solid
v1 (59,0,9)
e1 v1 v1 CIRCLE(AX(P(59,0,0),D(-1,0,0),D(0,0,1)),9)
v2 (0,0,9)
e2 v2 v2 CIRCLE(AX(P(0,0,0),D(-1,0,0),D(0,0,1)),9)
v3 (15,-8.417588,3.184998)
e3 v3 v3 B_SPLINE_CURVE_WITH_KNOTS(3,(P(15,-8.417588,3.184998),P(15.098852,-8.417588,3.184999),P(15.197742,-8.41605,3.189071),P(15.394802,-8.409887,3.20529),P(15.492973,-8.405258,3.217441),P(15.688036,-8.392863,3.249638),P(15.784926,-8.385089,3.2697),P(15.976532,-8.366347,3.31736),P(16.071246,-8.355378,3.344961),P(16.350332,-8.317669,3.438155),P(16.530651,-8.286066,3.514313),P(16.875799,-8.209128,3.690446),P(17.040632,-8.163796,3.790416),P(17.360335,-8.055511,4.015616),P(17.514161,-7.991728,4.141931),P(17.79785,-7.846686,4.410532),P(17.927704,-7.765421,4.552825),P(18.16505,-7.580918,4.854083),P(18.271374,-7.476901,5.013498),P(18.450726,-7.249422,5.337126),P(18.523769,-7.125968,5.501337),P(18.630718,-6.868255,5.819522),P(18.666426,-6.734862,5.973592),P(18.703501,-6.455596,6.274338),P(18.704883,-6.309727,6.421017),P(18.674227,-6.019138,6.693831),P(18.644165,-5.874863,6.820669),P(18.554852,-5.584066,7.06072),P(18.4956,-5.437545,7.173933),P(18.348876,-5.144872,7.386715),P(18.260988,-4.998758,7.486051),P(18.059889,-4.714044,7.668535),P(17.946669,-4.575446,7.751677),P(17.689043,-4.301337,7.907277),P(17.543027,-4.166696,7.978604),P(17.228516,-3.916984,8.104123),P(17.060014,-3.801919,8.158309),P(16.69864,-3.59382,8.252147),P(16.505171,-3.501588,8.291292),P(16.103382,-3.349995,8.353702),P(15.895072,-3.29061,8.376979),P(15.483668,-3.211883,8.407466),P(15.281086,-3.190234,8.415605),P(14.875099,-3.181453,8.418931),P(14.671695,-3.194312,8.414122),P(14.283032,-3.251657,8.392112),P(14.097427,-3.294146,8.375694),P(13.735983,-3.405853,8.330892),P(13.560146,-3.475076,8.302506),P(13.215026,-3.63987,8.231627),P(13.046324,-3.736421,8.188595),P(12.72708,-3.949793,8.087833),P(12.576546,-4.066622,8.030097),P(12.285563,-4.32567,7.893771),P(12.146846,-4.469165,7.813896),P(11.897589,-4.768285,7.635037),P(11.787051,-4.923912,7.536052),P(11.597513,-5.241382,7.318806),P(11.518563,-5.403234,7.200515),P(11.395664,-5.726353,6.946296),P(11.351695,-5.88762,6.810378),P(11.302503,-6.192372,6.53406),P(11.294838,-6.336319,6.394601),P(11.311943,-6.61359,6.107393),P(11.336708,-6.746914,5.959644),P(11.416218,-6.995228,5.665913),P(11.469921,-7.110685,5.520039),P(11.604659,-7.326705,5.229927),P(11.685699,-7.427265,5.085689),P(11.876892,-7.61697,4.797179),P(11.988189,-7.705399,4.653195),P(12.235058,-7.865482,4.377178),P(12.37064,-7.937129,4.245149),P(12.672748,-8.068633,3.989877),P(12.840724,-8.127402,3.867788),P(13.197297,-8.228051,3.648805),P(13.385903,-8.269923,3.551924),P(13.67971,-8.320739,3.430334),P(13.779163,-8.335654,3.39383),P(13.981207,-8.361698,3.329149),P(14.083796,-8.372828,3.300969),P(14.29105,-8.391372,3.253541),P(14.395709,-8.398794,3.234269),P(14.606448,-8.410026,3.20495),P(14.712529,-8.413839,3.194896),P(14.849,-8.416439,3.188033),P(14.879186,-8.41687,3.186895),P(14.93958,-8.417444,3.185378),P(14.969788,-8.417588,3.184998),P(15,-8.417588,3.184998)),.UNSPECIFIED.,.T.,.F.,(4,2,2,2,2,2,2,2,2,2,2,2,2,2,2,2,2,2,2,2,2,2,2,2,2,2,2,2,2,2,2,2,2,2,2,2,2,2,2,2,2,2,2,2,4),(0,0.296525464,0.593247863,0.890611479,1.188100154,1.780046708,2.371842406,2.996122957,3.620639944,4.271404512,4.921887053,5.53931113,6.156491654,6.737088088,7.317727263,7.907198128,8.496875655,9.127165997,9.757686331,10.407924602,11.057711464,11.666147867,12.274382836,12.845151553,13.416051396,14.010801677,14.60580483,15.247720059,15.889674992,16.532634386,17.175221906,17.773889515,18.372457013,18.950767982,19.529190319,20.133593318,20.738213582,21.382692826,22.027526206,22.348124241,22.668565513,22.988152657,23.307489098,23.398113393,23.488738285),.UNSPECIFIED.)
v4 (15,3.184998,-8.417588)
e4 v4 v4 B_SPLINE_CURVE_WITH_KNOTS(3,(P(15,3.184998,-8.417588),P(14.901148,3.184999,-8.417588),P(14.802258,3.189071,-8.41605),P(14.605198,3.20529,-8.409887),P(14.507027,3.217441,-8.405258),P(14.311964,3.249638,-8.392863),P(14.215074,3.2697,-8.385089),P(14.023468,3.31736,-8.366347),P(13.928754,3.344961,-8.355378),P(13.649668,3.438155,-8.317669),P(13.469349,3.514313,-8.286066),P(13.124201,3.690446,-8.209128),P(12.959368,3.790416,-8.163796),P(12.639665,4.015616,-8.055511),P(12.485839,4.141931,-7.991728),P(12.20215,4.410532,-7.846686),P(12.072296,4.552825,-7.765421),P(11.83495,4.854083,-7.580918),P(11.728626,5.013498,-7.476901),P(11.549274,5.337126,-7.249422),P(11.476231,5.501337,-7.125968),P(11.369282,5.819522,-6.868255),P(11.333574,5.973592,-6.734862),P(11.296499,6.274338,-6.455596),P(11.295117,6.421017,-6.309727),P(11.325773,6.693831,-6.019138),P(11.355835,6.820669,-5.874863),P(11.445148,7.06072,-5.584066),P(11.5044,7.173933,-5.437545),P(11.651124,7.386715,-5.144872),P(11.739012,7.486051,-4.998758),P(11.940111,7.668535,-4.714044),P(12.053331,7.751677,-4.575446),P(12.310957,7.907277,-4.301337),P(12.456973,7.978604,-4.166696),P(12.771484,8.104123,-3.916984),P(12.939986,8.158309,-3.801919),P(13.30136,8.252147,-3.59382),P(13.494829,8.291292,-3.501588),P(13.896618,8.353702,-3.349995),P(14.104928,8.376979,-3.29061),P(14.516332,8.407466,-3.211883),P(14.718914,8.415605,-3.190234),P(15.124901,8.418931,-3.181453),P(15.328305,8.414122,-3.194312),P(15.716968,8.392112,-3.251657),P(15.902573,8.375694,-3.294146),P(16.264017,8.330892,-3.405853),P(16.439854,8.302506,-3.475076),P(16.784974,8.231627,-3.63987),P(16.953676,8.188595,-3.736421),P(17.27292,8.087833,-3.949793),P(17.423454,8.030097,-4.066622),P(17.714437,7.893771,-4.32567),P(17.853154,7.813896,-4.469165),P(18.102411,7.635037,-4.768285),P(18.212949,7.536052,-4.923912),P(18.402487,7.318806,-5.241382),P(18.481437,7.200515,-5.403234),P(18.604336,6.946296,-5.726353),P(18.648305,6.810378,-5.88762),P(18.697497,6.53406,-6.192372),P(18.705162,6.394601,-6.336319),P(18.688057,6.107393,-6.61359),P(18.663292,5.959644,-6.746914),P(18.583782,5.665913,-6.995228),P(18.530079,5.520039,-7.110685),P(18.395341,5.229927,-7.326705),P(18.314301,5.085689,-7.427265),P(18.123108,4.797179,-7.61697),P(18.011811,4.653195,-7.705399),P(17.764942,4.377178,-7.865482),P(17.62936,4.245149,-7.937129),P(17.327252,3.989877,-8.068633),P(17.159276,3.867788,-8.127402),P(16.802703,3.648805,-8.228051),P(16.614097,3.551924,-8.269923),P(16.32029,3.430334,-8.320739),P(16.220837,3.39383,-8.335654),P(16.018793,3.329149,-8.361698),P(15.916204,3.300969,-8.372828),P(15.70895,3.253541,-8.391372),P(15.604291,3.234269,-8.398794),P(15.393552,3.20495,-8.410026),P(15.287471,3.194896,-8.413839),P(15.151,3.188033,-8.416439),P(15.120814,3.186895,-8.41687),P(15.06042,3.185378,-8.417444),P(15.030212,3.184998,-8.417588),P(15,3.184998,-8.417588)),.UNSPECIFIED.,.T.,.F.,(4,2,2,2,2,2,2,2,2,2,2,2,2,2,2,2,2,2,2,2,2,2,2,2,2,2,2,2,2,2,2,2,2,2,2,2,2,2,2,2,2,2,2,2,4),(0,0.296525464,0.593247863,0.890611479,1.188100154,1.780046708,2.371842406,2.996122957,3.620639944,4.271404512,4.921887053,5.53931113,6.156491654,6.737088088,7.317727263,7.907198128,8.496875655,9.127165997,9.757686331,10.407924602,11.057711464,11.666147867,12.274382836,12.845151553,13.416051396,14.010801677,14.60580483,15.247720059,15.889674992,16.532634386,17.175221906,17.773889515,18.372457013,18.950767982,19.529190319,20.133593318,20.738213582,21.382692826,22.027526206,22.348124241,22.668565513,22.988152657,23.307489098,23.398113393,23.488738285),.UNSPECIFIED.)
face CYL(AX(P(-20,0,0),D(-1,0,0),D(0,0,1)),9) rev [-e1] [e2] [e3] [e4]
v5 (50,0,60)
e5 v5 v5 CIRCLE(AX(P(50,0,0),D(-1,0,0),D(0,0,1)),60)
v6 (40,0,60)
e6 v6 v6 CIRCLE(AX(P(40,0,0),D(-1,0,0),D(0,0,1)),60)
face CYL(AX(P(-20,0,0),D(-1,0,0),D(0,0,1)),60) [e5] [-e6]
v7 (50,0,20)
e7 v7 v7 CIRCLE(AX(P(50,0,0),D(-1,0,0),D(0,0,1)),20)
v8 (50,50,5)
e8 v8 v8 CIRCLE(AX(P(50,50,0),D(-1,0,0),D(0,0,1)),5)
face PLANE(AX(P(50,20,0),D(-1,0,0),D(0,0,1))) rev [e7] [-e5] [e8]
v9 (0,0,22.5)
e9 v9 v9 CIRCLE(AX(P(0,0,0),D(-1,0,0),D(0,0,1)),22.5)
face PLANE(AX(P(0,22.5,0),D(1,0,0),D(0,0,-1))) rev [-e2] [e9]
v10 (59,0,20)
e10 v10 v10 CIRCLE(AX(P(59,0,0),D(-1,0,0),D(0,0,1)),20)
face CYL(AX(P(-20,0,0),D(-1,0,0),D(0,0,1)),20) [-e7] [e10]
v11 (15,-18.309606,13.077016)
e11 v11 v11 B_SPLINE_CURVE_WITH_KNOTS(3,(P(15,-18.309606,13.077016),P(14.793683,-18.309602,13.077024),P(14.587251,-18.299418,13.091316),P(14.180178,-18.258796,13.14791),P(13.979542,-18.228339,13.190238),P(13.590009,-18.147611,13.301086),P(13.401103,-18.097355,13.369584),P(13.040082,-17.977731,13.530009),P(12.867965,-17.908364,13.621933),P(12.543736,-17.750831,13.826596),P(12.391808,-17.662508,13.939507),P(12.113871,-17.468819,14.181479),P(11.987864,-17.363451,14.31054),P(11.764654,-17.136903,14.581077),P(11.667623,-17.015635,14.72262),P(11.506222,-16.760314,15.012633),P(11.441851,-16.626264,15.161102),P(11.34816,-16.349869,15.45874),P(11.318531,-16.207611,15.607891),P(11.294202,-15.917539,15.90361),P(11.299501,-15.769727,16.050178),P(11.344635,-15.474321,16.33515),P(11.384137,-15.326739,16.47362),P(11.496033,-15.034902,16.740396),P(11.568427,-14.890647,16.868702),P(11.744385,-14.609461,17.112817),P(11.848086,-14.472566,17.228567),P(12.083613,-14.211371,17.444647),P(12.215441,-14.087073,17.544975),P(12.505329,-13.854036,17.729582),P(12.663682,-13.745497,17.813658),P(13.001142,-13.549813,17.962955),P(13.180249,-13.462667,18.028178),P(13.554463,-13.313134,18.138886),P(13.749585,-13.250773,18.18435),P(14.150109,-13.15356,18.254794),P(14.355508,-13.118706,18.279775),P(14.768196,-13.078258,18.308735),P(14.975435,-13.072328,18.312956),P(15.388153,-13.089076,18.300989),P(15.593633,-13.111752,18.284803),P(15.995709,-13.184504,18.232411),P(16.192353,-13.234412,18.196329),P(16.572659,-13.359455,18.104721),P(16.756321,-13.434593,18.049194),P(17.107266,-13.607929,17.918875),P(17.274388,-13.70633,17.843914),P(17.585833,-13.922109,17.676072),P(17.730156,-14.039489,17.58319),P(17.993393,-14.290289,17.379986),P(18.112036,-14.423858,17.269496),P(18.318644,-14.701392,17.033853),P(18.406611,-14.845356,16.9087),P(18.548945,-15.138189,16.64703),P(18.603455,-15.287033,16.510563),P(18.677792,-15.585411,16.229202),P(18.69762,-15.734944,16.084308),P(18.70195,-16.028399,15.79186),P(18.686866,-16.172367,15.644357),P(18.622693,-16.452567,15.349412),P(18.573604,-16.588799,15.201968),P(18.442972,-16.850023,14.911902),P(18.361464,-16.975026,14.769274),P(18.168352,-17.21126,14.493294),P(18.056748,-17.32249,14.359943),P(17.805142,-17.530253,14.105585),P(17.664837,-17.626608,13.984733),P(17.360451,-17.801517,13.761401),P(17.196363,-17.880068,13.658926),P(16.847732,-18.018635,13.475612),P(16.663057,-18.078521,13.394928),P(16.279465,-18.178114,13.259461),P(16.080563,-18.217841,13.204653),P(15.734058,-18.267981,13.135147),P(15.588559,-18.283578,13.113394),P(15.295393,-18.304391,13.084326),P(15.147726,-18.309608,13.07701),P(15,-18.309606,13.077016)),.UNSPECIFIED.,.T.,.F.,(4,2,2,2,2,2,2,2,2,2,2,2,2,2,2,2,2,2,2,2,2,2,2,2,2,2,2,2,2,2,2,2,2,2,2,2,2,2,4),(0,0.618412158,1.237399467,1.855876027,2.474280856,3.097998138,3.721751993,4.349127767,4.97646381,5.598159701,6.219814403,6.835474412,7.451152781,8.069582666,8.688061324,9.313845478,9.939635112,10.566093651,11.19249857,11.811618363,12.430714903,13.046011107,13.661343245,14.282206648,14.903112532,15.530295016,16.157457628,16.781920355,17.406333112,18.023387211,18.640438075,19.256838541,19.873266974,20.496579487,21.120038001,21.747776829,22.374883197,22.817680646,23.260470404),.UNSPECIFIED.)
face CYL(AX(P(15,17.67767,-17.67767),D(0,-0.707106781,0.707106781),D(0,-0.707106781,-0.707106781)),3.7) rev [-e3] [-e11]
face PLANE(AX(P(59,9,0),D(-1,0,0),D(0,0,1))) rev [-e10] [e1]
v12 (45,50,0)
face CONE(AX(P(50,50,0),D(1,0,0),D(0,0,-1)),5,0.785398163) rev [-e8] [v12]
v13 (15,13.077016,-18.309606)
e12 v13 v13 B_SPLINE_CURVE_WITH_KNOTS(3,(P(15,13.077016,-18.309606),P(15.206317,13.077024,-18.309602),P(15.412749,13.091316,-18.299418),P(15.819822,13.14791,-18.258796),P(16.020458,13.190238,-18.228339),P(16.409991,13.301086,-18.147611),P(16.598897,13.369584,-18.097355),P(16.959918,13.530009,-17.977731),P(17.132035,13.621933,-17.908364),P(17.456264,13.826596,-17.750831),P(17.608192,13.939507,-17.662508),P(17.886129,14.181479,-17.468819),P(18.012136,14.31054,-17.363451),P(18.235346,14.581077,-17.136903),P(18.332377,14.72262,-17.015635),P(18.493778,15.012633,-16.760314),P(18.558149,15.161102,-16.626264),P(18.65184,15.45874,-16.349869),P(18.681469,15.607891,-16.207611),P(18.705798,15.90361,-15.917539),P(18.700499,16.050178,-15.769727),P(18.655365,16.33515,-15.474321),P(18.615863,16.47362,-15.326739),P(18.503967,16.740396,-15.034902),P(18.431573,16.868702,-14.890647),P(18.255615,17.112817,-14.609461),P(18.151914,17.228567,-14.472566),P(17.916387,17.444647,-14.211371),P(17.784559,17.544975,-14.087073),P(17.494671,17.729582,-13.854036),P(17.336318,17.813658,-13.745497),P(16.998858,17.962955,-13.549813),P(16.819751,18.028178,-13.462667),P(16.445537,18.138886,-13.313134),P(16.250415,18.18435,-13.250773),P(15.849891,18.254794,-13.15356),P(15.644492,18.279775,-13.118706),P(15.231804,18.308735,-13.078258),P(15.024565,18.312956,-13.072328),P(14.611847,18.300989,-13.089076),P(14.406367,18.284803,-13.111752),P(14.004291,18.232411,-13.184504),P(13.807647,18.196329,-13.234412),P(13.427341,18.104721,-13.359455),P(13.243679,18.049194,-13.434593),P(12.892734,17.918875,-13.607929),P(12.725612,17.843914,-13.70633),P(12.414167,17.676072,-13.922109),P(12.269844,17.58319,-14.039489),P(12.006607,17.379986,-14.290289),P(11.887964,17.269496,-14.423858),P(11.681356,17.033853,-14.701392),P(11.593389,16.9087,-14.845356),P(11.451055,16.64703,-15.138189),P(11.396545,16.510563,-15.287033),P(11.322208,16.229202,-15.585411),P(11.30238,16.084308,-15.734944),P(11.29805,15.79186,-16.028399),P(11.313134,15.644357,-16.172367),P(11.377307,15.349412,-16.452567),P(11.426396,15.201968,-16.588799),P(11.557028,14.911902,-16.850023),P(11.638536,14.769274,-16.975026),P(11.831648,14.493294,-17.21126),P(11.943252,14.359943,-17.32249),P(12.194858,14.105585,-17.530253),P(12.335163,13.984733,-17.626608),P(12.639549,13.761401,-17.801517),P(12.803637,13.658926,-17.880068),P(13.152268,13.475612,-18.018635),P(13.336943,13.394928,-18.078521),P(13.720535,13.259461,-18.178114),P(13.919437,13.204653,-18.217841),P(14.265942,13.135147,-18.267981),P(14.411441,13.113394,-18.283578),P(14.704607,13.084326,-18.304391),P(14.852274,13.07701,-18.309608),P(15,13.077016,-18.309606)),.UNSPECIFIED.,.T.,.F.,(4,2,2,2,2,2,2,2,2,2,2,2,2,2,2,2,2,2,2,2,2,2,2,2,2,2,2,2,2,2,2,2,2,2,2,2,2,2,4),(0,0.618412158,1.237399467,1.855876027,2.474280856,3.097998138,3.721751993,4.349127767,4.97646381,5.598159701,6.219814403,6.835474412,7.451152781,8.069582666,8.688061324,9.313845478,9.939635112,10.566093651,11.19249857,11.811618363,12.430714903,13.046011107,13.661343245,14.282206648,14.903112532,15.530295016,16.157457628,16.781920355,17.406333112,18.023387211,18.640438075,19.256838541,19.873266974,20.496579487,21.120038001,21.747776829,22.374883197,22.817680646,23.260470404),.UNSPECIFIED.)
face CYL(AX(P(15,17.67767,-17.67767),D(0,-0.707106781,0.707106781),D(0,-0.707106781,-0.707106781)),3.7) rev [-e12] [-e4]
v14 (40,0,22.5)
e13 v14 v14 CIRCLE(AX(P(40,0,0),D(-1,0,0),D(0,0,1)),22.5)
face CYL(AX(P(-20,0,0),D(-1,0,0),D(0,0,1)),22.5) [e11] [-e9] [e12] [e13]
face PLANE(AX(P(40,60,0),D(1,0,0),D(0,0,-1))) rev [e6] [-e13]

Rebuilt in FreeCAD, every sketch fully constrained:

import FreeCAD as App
import Part
import Sketcher
Q = App.Units.Quantity

doc = App.newDocument("Part")
body = doc.addObject("PartDesign::Body", "Body")

# Sketch on XY plane
sketch1 = doc.addObject("Sketcher::SketchObject", "Sketch")
body.addObject(sketch1)
sketch1.AttachmentSupport = (doc.XY_Plane, [""])
sketch1.MapMode = "FlatFace"
sketch1.addGeometry([
    Part.LineSegment(App.Vector(0, 9, 0), App.Vector(59, 9, 0)),  # 0
    Part.LineSegment(App.Vector(59, 9, 0), App.Vector(59, 20, 0)),  # 1
    Part.LineSegment(App.Vector(59, 20, 0), App.Vector(50, 20, 0)),  # 2
    Part.LineSegment(App.Vector(50, 20, 0), App.Vector(50, 60, 0)),  # 3
    Part.LineSegment(App.Vector(50, 60, 0), App.Vector(40, 60, 0)),  # 4
    Part.LineSegment(App.Vector(40, 60, 0), App.Vector(40, 22, 0)),  # 5
    Part.LineSegment(App.Vector(40, 22, 0), App.Vector(0, 22, 0)),  # 6
    Part.LineSegment(App.Vector(0, 22, 0), App.Vector(0, 9, 0)),  # 7
], False)
sketch1.addConstraint([
    Sketcher.Constraint("Coincident", 0, 2, 1, 1),
    Sketcher.Constraint("Coincident", 1, 2, 2, 1),
    Sketcher.Constraint("Coincident", 2, 2, 3, 1),
    Sketcher.Constraint("Coincident", 3, 2, 4, 1),
    Sketcher.Constraint("Coincident", 4, 2, 5, 1),
    Sketcher.Constraint("Coincident", 5, 2, 6, 1),
    Sketcher.Constraint("Coincident", 6, 2, 7, 1),
    Sketcher.Constraint("Coincident", 7, 2, 0, 1),
    Sketcher.Constraint("Horizontal", 0),
    Sketcher.Constraint("Vertical", 1),
    Sketcher.Constraint("Horizontal", 2),
    Sketcher.Constraint("Vertical", 3),
    Sketcher.Constraint("Horizontal", 4),
    Sketcher.Constraint("Vertical", 5),
    Sketcher.Constraint("Horizontal", 6),
    Sketcher.Constraint("Vertical", 7),
    Sketcher.Constraint("PointOnObject", 6, 2, -2),
    Sketcher.Constraint("Equal", 6, 3),
    Sketcher.Constraint("DistanceX", 0, 1, 0, 2, Q("59 mm")),
    Sketcher.Constraint("DistanceX", 2, 2, 2, 1, Q("9 mm")),
    Sketcher.Constraint("DistanceX", 4, 2, 4, 1, Q("10 mm")),
    Sketcher.Constraint("DistanceY", 1, 1, 1, 2, Q("11 mm")),
    Sketcher.Constraint("DistanceY", 5, 2, 5, 1, Q("37.5 mm")),
    Sketcher.Constraint("DistanceY", -1, 1, 0, 2, Q("9 mm")),
])
revolution = doc.addObject("PartDesign::Revolution", "Revolution")
body.addObject(revolution)
revolution.Profile = sketch1
revolution.ReferenceAxis = (sketch1, ["H_Axis"])
revolution.Angle = 360

# Sketch on XY plane
sketch2 = doc.addObject("Sketcher::SketchObject", "Sketch001")
body.addObject(sketch2)
sketch2.AttachmentSupport = (doc.XY_Plane, [""])
sketch2.MapMode = "FlatFace"
sketch2.addGeometry([
    Part.LineSegment(App.Vector(50, 55, 0), App.Vector(45, 50, 0)),
    Part.LineSegment(App.Vector(45, 50, 0), App.Vector(50, 50, 0)),
    Part.LineSegment(App.Vector(50, 50, 0), App.Vector(50, 55, 0)),
], False)
sketch2.addGeometry(Part.LineSegment(App.Vector(45, 50, 0), App.Vector(50, 50, 0)), True)  # axis
sketch2.addConstraint([
    Sketcher.Constraint("Coincident", 0, 2, 1, 1),
    Sketcher.Constraint("Coincident", 1, 2, 2, 1),
    Sketcher.Constraint("Coincident", 2, 2, 0, 1),
    Sketcher.Constraint("Horizontal", 1),
    Sketcher.Constraint("Vertical", 2),
    Sketcher.Constraint("Horizontal", 3),
    Sketcher.Constraint("Coincident", 3, 1, 0, 2),
    Sketcher.Constraint("Vertical", 2, 2, 3, 2),
    Sketcher.Constraint("Equal", 3, 2),
    Sketcher.Constraint("DistanceX", 1, 1, 1, 2, Q("5 mm")),
    Sketcher.Constraint("DistanceX", -1, 1, 0, 2, Q("45 mm")),
    Sketcher.Constraint("DistanceY", -1, 1, 0, 2, Q("50 mm")),
])
groove = doc.addObject("PartDesign::Groove", "Groove")
body.addObject(groove)
groove.Profile = sketch2
groove.ReferenceAxis = (sketch2, ["Axis0"])
groove.Angle = 360

# Sketch on an angled plane
sketch3 = doc.addObject("Sketcher::SketchObject", "Sketch002")
body.addObject(sketch3)
sketch3.Placement = App.Placement(App.Vector(0, 0, 0), App.Rotation(App.Vector(1, 0, 0), App.Vector(0, 0.707106781, 0.707106781), App.Vector(0, -0.707106781, 0.707106781), "ZXY"))
sketch3.addGeometry(Part.Circle(App.Vector(15, 0, 0), App.Vector(0, 0, 1), 3.7), False)
sketch3.addConstraint([
    Sketcher.Constraint("PointOnObject", 0, 3, -1),
    Sketcher.Constraint("Diameter", 0, Q("7.4 mm")),
    Sketcher.Constraint("DistanceX", -1, 1, 0, 3, Q("15 mm")),
])
pocket1 = doc.addObject("PartDesign::Pocket", "Pocket")
body.addObject(pocket1)
pocket1.Profile = sketch3
pocket1.Length = 50
pocket1.Midplane = True

doc.recompute()
